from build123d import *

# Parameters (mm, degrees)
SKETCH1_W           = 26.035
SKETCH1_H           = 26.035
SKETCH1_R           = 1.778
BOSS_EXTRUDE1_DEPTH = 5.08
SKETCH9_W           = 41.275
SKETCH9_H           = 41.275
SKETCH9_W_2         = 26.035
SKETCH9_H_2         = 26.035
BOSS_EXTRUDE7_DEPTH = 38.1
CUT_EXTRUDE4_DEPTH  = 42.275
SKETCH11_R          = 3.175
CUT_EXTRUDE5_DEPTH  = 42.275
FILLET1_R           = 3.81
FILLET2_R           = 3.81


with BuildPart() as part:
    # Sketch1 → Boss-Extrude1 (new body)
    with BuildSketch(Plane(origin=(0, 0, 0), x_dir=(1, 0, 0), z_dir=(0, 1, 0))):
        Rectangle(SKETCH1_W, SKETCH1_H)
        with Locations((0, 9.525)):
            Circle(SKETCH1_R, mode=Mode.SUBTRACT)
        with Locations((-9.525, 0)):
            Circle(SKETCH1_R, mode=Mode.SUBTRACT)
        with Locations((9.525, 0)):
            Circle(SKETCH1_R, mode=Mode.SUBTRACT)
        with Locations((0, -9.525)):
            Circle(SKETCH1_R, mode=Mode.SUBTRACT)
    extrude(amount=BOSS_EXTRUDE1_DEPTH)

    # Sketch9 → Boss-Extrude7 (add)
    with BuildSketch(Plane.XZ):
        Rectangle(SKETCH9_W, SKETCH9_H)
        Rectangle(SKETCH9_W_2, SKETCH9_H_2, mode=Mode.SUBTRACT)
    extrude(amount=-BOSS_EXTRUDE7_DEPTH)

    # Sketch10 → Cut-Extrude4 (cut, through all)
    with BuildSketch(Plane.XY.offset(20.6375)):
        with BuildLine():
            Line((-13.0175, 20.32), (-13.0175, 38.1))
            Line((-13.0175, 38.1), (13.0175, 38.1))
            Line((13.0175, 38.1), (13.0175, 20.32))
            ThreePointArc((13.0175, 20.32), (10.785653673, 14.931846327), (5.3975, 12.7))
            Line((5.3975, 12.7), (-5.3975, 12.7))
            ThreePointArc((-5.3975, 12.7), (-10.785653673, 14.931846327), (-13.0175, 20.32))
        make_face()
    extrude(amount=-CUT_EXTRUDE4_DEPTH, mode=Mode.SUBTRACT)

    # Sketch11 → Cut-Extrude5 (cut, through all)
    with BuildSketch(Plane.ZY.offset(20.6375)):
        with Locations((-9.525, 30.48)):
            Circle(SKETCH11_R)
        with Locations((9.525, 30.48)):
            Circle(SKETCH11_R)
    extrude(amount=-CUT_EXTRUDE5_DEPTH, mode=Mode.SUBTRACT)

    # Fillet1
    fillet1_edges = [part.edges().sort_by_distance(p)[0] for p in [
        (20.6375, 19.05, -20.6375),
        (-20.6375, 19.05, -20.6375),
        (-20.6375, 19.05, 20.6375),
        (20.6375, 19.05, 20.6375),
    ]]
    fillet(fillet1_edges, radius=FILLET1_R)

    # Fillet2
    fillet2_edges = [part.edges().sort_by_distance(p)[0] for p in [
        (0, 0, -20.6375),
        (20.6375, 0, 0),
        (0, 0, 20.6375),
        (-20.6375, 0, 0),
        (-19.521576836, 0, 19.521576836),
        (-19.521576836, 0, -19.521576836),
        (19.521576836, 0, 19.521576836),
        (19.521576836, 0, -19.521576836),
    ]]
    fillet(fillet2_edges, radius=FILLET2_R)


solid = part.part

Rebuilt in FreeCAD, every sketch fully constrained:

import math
import FreeCAD as App
import Part
import Sketcher
from FreeCAD import Vector
Q = App.Units.Quantity


def edges_at(feature, points):
    """Names of the edges that pass closest to the given points."""
    edges = feature.Shape.Edges
    near = lambda p: min(range(len(edges)), key=lambda i: edges[i].distToShape(Part.Vertex(*p))[0])
    return sorted({f"Edge{near(p) + 1}" for p in points})


def add_polygon(sketch, points):
    """Adds a closed chain of lines whose ends are joined by coincident constraints."""
    first, n = sketch.GeometryCount, len(points)
    for a, b in zip(points, points[1:] + points[:1]):
        sketch.addGeometry(Part.LineSegment(App.Vector(*a, 0), App.Vector(*b, 0)), False)
    for i in range(n):
        sketch.addConstraint(Sketcher.Constraint("Coincident", first + i, 2, first + (i + 1) % n, 1))

doc = App.newDocument("Part")
body = doc.addObject("PartDesign::Body", "Body")

# Sketch on XZ plane
sketch1 = doc.addObject("Sketcher::SketchObject", "Sketch")
body.addObject(sketch1)
sketch1.AttachmentSupport = (doc.XZ_Plane, [""])
sketch1.MapMode = "FlatFace"
add_polygon(sketch1, [(-13.0175, -13.0175), (-13.0175, 13.0175), (13.0175, 13.0175), (13.0175, -13.0175)])  # lines 0-3
sketch1.addGeometry(Part.Circle(Vector(0, 9.525, 0), Vector(0, 0, 1), 1.778), False)  # 4
sketch1.addGeometry(Part.Circle(Vector(-9.525, 0, 0), Vector(0, 0, 1), 1.778), False)  # 5
sketch1.addGeometry(Part.Circle(Vector(9.525, 0, 0), Vector(0, 0, 1), 1.778), False)  # 6
sketch1.addGeometry(Part.Circle(Vector(0, -9.525, 0), Vector(0, 0, 1), 1.778), False)  # 7
sketch1.addConstraint([
    Sketcher.Constraint("Vertical", 0),
    Sketcher.Constraint("Horizontal", 1),
    Sketcher.Constraint("Vertical", 2),
    Sketcher.Constraint("Horizontal", 3),
    Sketcher.Constraint("Equal", 4, 5),
    Sketcher.Constraint("Equal", 5, 6),
    Sketcher.Constraint("Equal", 6, 7),
    Sketcher.Constraint("Symmetric", 5, 3, 6, 3, -1, 1),
    Sketcher.Constraint("Symmetric", 4, 3, 7, 3, -1, 1),
    Sketcher.Constraint("Symmetric", 0, 2, 2, 2, -1, 1),
    Sketcher.Constraint("PointOnObject", 4, 3, -2),
    Sketcher.Constraint("PointOnObject", 5, 3, -1),
    Sketcher.Constraint("Equal", 3, 0),
    Sketcher.Constraint("Diameter", 4, Q("0.14 in")),
    Sketcher.Constraint("DistanceX", 1, 1, 1, 2, Q("1.025 in")),
    Sketcher.Constraint("DistanceX", 5, 3, 6, 3, Q("0.75 in")),
    Sketcher.Constraint("DistanceY", 7, 3, 4, 3, Q("0.75 in")),
])
pad1 = doc.addObject("PartDesign::Pad", "Pad")
body.addObject(pad1)
pad1.Profile = sketch1
pad1.Length = Q("0.2 in")
pad1.Reversed = True

# Sketch on XZ plane
sketch2 = doc.addObject("Sketcher::SketchObject", "Sketch001")
body.addObject(sketch2)
sketch2.AttachmentSupport = (doc.XZ_Plane, [""])
sketch2.MapMode = "FlatFace"
add_polygon(sketch2, [(-20.6375, 20.6375), (-20.6375, -20.6375), (20.6375, -20.6375), (20.6375, 20.6375)])  # lines 0-3
add_polygon(sketch2, [(13.0175, -13.0175), (-13.0175, -13.0175), (-13.0175, 13.0175), (13.0175, 13.0175)])  # lines 4-7
sketch2.addConstraint([
    Sketcher.Constraint("Vertical", 0),
    Sketcher.Constraint("Horizontal", 1),
    Sketcher.Constraint("Vertical", 2),
    Sketcher.Constraint("Horizontal", 3),
    Sketcher.Constraint("Horizontal", 4),
    Sketcher.Constraint("Vertical", 5),
    Sketcher.Constraint("Horizontal", 6),
    Sketcher.Constraint("Vertical", 7),
    Sketcher.Constraint("Symmetric", 0, 2, 2, 2, -1, 1),
    Sketcher.Constraint("Symmetric", 4, 2, 6, 2, -1, 1),
    Sketcher.Constraint("Equal", 3, 0),
    Sketcher.Constraint("Equal", 6, 5),
    Sketcher.Constraint("DistanceX", 0, 2, 4, 2, Q("0.3 in")),
    Sketcher.Constraint("DistanceX", 1, 1, 1, 2, Q("1.625 in")),
])
pad2 = doc.addObject("PartDesign::Pad", "Pad001")
body.addObject(pad2)
pad2.Profile = sketch2
pad2.Length = Q("1.5 in")
pad2.Reversed = True

# Sketch on XY plane
sketch3 = doc.addObject("Sketcher::SketchObject", "Sketch002")
body.addObject(sketch3)
sketch3.AttachmentSupport = (doc.XY_Plane, [""])
sketch3.MapMode = "FlatFace"
sketch3.AttachmentOffset = App.Placement(Vector(0, 0, 0.8125 * 25.4), App.Rotation())
sketch3.addGeometry([
    Part.LineSegment(Vector(-13.0175, 38.1, 0), Vector(-13.0175, 20.32, 0)),  # 0
    Part.ArcOfCircle(Part.Circle(Vector(-5.3975, 20.32, 0), Vector(0, 0, 1), 7.62), math.radians(180), math.radians(270)),  # 1
    Part.LineSegment(Vector(-5.3975, 12.7, 0), Vector(5.3975, 12.7, 0)),  # 2
    Part.ArcOfCircle(Part.Circle(Vector(5.3975, 20.32, 0), Vector(0, 0, 1), 7.62), math.radians(-90), math.radians(0)),  # 3
    Part.LineSegment(Vector(13.0175, 20.32, 0), Vector(13.0175, 38.1, 0)),  # 4
    Part.LineSegment(Vector(13.0175, 38.1, 0), Vector(-13.0175, 38.1, 0)),  # 5
], False)
sketch3.addConstraint([
    Sketcher.Constraint("Tangent", 0, 2, 1, 1),
    Sketcher.Constraint("Tangent", 1, 2, 2, 1),
    Sketcher.Constraint("Tangent", 2, 2, 3, 1),
    Sketcher.Constraint("Tangent", 3, 2, 4, 1),
    Sketcher.Constraint("Coincident", 4, 2, 5, 1),
    Sketcher.Constraint("Coincident", 5, 2, 0, 1),
    Sketcher.Constraint("Vertical", 0),
    Sketcher.Constraint("Horizontal", 2),
    Sketcher.Constraint("Vertical", 4),
    Sketcher.Constraint("Horizontal", 5),
    Sketcher.Constraint("Equal", 1, 3),
    Sketcher.Constraint("Radius", 1, Q("0.3 in")),
    Sketcher.Constraint("DistanceY", 0, 2, 0, 1, Q("0.7 in")),
    Sketcher.Constraint("DistanceY", -1, 1, 1, 3, Q("0.8 in")),
    Sketcher.Constraint("DistanceX", 2, 1, 2, 2, Q("0.425 in")),
    Sketcher.Constraint("DistanceX", 1, 3, -1, 1, Q("0.2125 in")),
])
pocket1 = doc.addObject("PartDesign::Pocket", "Pocket")
body.addObject(pocket1)
pocket1.Profile = sketch3
pocket1.Type = "ThroughAll"

# Sketch on YZ plane
sketch4 = doc.addObject("Sketcher::SketchObject", "Sketch003")
body.addObject(sketch4)
sketch4.AttachmentSupport = (doc.YZ_Plane, [""])
sketch4.MapMode = "FlatFace"
sketch4.AttachmentOffset = App.Placement(Vector(0, 0, -0.8125 * 25.4), App.Rotation())
sketch4.addGeometry([
    Part.Circle(Vector(30.48, -9.525, 0), Vector(0, 0, 1), 3.175),
    Part.Circle(Vector(30.48, 9.525, 0), Vector(0, 0, 1), 3.175),
], False)
sketch4.addConstraint([
    Sketcher.Constraint("Equal", 0, 1),
    Sketcher.Constraint("Symmetric", 0, 3, 1, 3, -1),
    Sketcher.Constraint("Diameter", 0, Q("0.25 in")),
    Sketcher.Constraint("DistanceX", -1, 1, 0, 3, Q("1.2 in")),
    Sketcher.Constraint("DistanceY", 0, 3, 1, 3, Q("0.75 in")),
])
pocket2 = doc.addObject("PartDesign::Pocket", "Pocket001")
body.addObject(pocket2)
pocket2.Profile = sketch4
pocket2.Type = "ThroughAll"
pocket2.Reversed = True
doc.recompute()

fillet = doc.addObject("PartDesign::Fillet", "Fillet")
body.addObject(fillet)
fillet.Base = (pocket2, edges_at(pocket2, [
    (20.637, 19.05, -20.637),
    (-20.637, 19.05, -20.637),
    (-20.637, 19.05, 20.637),
    (20.637, 19.05, 20.637),
]))
fillet.Radius = Q("0.15 in")
doc.recompute()

fillet2 = doc.addObject("PartDesign::Fillet", "Fillet001")
body.addObject(fillet2)
fillet2.Base = (fillet, edges_at(fillet, [
    (0, 0, -20.637),
    (20.637, 0, 0),
    (0, 0, 20.637),
    (-20.637, 0, 0),
    (-19.522, 0, 19.522),
    (-19.522, 0, -19.522),
    (19.522, 0, 19.522),
    (19.522, 0, -19.522),
]))
fillet2.Radius = Q("0.15 in")

doc.recompute()
